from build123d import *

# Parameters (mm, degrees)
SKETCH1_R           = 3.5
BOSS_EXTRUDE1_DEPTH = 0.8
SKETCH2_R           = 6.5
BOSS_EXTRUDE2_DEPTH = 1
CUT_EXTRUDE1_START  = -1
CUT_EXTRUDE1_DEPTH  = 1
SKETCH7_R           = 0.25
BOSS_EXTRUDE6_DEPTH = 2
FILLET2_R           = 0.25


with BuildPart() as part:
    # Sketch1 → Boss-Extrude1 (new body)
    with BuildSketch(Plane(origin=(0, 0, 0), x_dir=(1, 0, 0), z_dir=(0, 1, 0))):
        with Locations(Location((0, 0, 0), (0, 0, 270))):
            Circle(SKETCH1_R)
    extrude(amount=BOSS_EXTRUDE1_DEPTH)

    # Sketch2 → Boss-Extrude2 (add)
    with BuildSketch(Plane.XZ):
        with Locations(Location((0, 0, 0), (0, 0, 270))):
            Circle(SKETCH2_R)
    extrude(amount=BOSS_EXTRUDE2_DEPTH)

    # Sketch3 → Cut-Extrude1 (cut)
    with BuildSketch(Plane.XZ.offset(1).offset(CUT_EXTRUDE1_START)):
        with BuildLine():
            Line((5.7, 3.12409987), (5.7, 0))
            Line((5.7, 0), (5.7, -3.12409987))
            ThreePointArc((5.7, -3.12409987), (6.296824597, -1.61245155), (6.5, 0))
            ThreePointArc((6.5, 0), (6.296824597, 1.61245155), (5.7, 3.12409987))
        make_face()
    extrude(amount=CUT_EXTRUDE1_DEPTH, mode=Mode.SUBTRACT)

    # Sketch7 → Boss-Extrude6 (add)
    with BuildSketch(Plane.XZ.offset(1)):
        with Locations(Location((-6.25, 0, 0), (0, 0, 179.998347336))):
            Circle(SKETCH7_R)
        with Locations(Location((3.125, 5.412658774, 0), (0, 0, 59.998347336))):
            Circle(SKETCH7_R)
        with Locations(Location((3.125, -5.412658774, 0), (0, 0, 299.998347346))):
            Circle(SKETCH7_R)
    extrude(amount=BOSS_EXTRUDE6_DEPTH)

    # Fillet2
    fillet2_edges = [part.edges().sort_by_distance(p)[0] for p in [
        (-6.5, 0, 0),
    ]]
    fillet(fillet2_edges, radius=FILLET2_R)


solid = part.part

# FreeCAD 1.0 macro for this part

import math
import FreeCAD as App
import Part
import Sketcher

V = App.Vector
Q = App.Units.Quantity


def edges_at(feature, points):
    """Names of the edges that pass closest to the given points."""
    edges = feature.Shape.Edges
    near = lambda p: min(range(len(edges)), key=lambda i: edges[i].distToShape(Part.Vertex(*p))[0])
    return sorted({f"Edge{near(p) + 1}" for p in points})

doc = App.newDocument("Part")
body = doc.addObject("PartDesign::Body", "Body")

# Sketch on XZ plane
sketch1 = body.newObject("Sketcher::SketchObject", "Sketch")
sketch1.AttachmentSupport = (doc.getObject("XZ_Plane"), [""])
sketch1.MapMode = "FlatFace"
sketch1.addGeometry(Part.Circle(V(0, 0, 0), V(0, 0, 1), 3.5), False)
sketch1.addConstraint([
    Sketcher.Constraint("Coincident", 0, 3, -1, 1),
    Sketcher.Constraint("Diameter", 0, Q("7 mm")),
])
pad1 = body.newObject("PartDesign::Pad", "Pad")
pad1.Profile = sketch1
pad1.Length = 0.8
pad1.Reversed = True

# Sketch on XZ plane
sketch2 = body.newObject("Sketcher::SketchObject", "Sketch001")
sketch2.AttachmentSupport = (doc.getObject("XZ_Plane"), [""])
sketch2.MapMode = "FlatFace"
sketch2.addGeometry(Part.Circle(V(0, 0, 0), V(0, 0, 1), 6), False)
sketch2.addConstraint([
    Sketcher.Constraint("Coincident", 0, 3, -1, 1),
    Sketcher.Constraint("Diameter", 0, Q("13 mm")),
])
pad2 = body.newObject("PartDesign::Pad", "Pad001")
pad2.Profile = sketch2
pad2.Length = 1

# Sketch on XZ plane
sketch3 = body.newObject("Sketcher::SketchObject", "Sketch002")
sketch3.AttachmentSupport = (doc.getObject("XZ_Plane"), [""])
sketch3.MapMode = "FlatFace"
sketch3.addGeometry([
    Part.LineSegment(V(5.7, 3.1, 0), V(5.7, -3.1, 0)),
    Part.ArcOfCircle(Part.Circle(V(0, 0, 0), V(0, 0, 1), 6.5), math.radians(-29), math.radians(0)),
    Part.ArcOfCircle(Part.Circle(V(0, 0, 0), V(0, 0, 1), 6.5), math.radians(0), math.radians(29)),
], False)
sketch3.addConstraint([
    Sketcher.Constraint("Coincident", 0, 2, 1, 1),
    Sketcher.Constraint("Tangent", 1, 2, 2, 1),
    Sketcher.Constraint("Coincident", 2, 2, 0, 1),
    Sketcher.Constraint("Vertical", 0),
    Sketcher.Constraint("Coincident", 1, 3, -1, 1),
    Sketcher.Constraint("Equal", 1, 2),
    Sketcher.Constraint("PointOnObject", 1, 2, -1),
    Sketcher.Constraint("Radius", 1, Q("6.5 mm")),
    Sketcher.Constraint("DistanceX", -1, 1, 0, 2, Q("5.7 mm")),
])
pocket1 = body.newObject("PartDesign::Pocket", "Pocket")
pocket1.Profile = sketch3
pocket1.Length = 1
pocket1.Reversed = True

# Sketch on XZ plane
sketch4 = body.newObject("Sketcher::SketchObject", "Sketch003")
sketch4.AttachmentSupport = (doc.getObject("XZ_Plane"), [""])
sketch4.MapMode = "FlatFace"
sketch4.AttachmentOffset = App.Placement(V(0, 0, 1), App.Rotation())
sketch4.addGeometry([
    Part.Circle(V(-6.25, 0, 0), V(0, 0, 1), 0.25),
    Part.Circle(V(3.12, 5.41, 0), V(0, 0, 1), 0.25),
    Part.Circle(V(3.12, -5.41, 0), V(0, 0, 1), 0.25),
], False)
sketch4.addConstraint([
    Sketcher.Constraint("Equal", 0, 1),
    Sketcher.Constraint("Equal", 1, 2),
    Sketcher.Constraint("Symmetric", 1, 3, 2, 3, -1),
    Sketcher.Constraint("PointOnObject", 0, 3, -1),
    Sketcher.Constraint("Diameter", 0, Q("0.5 mm")),
    Sketcher.Constraint("DistanceX", 0, 3, -1, 1, Q("6.25 mm")),
    Sketcher.Constraint("DistanceX", -1, 1, 1, 3, Q("3.125 mm")),
    Sketcher.Constraint("DistanceY", -1, 1, 1, 3, Q("5.412659 mm")),
])
pad3 = body.newObject("PartDesign::Pad", "Pad002")
pad3.Profile = sketch4
pad3.Length = 2
doc.recompute()

fillet = body.newObject("PartDesign::Fillet", "Fillet")
fillet.Base = (pad3, edges_at(pad3, [(-6.5, 0, 0)]))
fillet.Radius = 0.25

doc.recompute()
